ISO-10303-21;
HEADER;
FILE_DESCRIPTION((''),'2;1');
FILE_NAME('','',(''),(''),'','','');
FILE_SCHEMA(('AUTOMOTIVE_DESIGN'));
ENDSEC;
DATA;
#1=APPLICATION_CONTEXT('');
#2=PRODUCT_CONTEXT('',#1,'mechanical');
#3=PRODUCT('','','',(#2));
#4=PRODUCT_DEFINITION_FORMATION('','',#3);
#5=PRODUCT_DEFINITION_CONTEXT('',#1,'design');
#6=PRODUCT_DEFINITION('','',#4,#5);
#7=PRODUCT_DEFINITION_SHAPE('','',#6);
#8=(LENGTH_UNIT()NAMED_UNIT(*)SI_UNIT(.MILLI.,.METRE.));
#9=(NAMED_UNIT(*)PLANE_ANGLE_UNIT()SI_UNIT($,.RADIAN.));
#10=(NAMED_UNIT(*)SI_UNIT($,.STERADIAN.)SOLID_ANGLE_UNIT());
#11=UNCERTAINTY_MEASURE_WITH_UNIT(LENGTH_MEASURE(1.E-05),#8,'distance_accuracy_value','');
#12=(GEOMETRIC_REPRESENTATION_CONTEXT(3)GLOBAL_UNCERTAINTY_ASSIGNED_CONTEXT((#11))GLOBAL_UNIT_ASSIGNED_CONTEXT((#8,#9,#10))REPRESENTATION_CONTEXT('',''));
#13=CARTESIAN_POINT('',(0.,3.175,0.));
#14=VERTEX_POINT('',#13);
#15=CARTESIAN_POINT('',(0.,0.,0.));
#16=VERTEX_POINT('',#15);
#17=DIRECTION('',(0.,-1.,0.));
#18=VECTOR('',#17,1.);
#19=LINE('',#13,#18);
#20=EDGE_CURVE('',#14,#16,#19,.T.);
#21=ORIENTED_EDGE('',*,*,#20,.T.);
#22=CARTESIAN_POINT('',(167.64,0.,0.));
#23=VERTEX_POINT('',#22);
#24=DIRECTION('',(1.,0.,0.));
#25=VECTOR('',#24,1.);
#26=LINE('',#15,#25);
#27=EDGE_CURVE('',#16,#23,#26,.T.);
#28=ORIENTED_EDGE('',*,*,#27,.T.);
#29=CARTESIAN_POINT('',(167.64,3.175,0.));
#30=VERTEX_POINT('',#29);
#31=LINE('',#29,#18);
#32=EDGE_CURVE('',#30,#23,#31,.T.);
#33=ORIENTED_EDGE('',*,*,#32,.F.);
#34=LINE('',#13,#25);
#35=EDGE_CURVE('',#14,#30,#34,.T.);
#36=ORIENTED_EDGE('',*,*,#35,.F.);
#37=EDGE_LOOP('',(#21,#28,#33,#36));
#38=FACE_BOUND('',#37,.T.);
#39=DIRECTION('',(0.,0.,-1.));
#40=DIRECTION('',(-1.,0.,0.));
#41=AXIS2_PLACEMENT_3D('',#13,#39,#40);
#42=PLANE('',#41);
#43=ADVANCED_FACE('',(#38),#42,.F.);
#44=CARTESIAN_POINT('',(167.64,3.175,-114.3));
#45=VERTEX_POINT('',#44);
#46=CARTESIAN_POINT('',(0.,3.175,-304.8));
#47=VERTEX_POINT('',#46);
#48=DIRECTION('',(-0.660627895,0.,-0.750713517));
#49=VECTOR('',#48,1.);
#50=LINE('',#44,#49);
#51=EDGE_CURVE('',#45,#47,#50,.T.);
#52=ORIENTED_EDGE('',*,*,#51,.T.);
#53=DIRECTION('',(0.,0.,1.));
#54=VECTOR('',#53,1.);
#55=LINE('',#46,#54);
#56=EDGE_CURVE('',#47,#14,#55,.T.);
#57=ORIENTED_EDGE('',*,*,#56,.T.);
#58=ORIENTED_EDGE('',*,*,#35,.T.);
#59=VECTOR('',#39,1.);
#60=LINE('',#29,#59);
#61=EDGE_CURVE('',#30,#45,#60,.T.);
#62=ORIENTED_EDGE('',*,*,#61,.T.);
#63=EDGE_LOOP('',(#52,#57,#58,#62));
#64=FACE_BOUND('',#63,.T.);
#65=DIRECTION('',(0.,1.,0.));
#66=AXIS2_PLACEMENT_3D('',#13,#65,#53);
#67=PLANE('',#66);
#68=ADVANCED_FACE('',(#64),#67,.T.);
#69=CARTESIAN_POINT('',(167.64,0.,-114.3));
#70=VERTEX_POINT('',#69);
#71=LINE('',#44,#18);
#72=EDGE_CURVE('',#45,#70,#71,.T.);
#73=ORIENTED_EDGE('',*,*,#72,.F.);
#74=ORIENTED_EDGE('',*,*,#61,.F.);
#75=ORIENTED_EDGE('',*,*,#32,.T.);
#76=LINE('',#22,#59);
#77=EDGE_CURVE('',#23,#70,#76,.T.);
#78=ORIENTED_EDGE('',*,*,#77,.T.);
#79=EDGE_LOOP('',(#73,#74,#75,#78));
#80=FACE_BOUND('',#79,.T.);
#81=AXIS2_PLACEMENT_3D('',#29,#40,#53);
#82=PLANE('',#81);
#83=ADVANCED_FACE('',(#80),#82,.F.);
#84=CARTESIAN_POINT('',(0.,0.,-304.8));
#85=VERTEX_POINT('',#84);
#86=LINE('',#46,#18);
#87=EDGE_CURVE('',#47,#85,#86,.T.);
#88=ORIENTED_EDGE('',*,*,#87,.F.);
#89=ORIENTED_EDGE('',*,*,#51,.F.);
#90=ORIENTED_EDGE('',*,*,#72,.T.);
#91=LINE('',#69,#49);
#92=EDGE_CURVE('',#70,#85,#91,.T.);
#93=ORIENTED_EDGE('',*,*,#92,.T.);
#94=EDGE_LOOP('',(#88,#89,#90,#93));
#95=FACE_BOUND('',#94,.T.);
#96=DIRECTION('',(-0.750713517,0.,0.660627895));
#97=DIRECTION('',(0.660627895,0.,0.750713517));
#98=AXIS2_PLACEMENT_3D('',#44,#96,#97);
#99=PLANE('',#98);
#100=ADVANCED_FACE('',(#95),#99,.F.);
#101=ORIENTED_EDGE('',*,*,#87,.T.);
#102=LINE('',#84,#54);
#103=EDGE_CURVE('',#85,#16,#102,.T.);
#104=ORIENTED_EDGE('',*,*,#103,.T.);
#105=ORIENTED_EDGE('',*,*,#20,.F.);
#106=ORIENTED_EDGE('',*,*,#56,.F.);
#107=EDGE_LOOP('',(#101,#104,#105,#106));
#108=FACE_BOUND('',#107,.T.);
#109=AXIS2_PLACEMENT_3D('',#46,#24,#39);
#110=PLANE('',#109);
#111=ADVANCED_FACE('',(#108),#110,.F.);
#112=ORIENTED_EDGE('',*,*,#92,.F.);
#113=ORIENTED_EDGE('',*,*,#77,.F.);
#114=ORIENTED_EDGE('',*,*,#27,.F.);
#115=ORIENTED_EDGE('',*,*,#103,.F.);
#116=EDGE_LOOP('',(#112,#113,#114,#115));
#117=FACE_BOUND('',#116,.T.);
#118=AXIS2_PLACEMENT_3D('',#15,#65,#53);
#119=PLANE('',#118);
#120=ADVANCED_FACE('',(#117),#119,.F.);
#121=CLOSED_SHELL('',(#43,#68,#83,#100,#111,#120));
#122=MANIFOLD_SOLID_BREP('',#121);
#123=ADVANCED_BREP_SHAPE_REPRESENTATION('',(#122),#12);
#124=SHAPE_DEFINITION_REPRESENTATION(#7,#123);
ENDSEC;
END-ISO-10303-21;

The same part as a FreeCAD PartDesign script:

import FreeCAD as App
import Part
import Sketcher

V = App.Vector
Q = App.Units.Quantity


def add_polygon(sketch, points):
    """Adds a closed chain of lines whose ends are joined by coincident constraints."""
    first, n = sketch.GeometryCount, len(points)
    for a, b in zip(points, points[1:] + points[:1]):
        sketch.addGeometry(Part.LineSegment(App.Vector(*a, 0), App.Vector(*b, 0)), False)
    for i in range(n):
        sketch.addConstraint(Sketcher.Constraint("Coincident", first + i, 2, first + (i + 1) % n, 1))

doc = App.newDocument("Part")
body = doc.addObject("PartDesign::Body", "Body")

sketch1 = body.newObject("Sketcher::SketchObject", "Sketch")
sketch1.AttachmentSupport = (doc.getObject("XZ_Plane"), [""])
sketch1.MapMode = "FlatFace"
add_polygon(sketch1, [(0, 0), (168, 0), (168, -114), (0, -305)])
sketch1.addConstraint(Sketcher.Constraint("Horizontal", 0))
sketch1.addConstraint(Sketcher.Constraint("Vertical", 1))
sketch1.addConstraint(Sketcher.Constraint("Vertical", 3))
sketch1.addConstraint(Sketcher.Constraint("Coincident", 3, 2, -1, 1))
sketch1.addConstraint(Sketcher.Constraint("DistanceY", 3, 1, 3, 2, Q("12 in")))
sketch1.addConstraint(Sketcher.Constraint("DistanceX", 0, 1, 0, 2, Q("6.6 in")))
sketch1.addConstraint(Sketcher.Constraint("DistanceY", 1, 2, 1, 1, Q("4.5 in")))
pad1 = body.newObject("PartDesign::Pad", "Pad")
pad1.Profile = sketch1
pad1.Length = Q("0.125 in")
pad1.Reversed = True

doc.recompute()
